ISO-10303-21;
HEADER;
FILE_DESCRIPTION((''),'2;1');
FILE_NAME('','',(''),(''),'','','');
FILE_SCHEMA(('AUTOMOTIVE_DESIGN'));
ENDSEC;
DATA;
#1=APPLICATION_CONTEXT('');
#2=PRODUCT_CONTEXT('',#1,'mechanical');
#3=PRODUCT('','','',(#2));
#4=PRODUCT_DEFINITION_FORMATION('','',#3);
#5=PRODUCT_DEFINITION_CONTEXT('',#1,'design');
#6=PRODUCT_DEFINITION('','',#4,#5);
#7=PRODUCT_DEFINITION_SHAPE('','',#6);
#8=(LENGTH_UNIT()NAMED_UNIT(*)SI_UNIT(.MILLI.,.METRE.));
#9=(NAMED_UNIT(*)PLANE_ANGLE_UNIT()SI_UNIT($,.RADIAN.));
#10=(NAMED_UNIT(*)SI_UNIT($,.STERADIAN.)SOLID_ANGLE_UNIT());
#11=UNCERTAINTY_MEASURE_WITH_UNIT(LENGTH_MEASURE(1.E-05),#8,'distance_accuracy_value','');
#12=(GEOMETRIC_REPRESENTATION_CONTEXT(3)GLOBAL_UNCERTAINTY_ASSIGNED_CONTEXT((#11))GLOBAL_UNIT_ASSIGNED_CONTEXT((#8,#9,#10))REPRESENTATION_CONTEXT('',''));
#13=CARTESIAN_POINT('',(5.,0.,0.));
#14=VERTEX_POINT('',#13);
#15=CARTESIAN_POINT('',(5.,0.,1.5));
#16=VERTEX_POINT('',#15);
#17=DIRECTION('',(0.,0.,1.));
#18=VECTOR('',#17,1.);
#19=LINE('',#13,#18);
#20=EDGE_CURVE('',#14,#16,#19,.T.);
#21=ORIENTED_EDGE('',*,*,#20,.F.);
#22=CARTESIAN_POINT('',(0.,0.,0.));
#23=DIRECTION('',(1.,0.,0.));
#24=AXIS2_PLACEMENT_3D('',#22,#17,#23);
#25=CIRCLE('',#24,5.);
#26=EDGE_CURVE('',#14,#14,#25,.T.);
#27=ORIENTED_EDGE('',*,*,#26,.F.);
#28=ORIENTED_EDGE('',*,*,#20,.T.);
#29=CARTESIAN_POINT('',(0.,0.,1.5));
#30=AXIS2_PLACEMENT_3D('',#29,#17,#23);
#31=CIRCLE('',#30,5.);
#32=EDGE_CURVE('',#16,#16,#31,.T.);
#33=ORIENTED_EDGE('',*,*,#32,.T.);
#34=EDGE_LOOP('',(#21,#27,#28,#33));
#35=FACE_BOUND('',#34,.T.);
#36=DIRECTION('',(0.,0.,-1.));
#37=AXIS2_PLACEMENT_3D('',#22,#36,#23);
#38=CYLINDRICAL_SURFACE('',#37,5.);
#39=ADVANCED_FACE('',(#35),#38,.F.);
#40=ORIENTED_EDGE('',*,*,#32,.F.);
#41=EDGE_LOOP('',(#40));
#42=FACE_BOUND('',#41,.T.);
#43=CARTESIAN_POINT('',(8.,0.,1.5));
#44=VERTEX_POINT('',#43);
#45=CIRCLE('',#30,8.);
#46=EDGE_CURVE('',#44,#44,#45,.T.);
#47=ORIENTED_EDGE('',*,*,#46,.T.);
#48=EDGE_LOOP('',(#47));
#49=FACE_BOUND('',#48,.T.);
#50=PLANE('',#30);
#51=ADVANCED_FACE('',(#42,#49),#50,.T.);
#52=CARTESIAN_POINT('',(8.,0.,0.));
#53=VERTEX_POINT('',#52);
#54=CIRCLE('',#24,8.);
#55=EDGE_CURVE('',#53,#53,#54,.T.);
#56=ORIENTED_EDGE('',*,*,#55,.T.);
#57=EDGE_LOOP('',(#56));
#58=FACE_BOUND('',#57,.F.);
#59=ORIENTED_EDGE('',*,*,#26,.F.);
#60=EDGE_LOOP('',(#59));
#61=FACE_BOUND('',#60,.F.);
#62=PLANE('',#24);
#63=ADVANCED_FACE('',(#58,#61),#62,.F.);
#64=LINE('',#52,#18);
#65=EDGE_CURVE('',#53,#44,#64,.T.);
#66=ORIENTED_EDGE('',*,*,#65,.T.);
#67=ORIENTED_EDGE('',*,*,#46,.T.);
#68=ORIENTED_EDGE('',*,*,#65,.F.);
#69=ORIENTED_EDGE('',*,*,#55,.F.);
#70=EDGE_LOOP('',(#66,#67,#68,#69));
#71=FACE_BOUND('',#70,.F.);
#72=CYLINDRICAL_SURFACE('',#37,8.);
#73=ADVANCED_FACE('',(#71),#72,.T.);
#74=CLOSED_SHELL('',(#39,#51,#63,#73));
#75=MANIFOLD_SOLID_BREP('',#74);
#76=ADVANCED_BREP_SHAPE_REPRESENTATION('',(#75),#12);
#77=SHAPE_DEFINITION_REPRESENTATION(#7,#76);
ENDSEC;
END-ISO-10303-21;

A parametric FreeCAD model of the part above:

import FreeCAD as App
import Part
import Sketcher
Q = App.Units.Quantity

doc = App.newDocument("Part")
body = doc.addObject("PartDesign::Body", "Body")

sketch1 = doc.addObject("Sketcher::SketchObject", "Sketch")
body.addObject(sketch1)
sketch1.AttachmentSupport = (doc.XY_Plane, [""])
sketch1.MapMode = "FlatFace"
sketch1.addGeometry([
    Part.Circle(App.Vector(0, 0, 0), App.Vector(0, 0, 1), 8),
    Part.Circle(App.Vector(0, 0, 0), App.Vector(0, 0, 1), 5),
], False)
sketch1.addConstraint([
    Sketcher.Constraint("Coincident", 0, 3, -1, 1),
    Sketcher.Constraint("Coincident", 1, 3, -1, 1),
    Sketcher.Constraint("Diameter", 1, Q("10 mm")),
    Sketcher.Constraint("Diameter", 0, Q("16 mm")),
])
pad1 = doc.addObject("PartDesign::Pad", "Pad")
body.addObject(pad1)
pad1.Profile = sketch1
pad1.Length = 1.5

doc.recompute()
